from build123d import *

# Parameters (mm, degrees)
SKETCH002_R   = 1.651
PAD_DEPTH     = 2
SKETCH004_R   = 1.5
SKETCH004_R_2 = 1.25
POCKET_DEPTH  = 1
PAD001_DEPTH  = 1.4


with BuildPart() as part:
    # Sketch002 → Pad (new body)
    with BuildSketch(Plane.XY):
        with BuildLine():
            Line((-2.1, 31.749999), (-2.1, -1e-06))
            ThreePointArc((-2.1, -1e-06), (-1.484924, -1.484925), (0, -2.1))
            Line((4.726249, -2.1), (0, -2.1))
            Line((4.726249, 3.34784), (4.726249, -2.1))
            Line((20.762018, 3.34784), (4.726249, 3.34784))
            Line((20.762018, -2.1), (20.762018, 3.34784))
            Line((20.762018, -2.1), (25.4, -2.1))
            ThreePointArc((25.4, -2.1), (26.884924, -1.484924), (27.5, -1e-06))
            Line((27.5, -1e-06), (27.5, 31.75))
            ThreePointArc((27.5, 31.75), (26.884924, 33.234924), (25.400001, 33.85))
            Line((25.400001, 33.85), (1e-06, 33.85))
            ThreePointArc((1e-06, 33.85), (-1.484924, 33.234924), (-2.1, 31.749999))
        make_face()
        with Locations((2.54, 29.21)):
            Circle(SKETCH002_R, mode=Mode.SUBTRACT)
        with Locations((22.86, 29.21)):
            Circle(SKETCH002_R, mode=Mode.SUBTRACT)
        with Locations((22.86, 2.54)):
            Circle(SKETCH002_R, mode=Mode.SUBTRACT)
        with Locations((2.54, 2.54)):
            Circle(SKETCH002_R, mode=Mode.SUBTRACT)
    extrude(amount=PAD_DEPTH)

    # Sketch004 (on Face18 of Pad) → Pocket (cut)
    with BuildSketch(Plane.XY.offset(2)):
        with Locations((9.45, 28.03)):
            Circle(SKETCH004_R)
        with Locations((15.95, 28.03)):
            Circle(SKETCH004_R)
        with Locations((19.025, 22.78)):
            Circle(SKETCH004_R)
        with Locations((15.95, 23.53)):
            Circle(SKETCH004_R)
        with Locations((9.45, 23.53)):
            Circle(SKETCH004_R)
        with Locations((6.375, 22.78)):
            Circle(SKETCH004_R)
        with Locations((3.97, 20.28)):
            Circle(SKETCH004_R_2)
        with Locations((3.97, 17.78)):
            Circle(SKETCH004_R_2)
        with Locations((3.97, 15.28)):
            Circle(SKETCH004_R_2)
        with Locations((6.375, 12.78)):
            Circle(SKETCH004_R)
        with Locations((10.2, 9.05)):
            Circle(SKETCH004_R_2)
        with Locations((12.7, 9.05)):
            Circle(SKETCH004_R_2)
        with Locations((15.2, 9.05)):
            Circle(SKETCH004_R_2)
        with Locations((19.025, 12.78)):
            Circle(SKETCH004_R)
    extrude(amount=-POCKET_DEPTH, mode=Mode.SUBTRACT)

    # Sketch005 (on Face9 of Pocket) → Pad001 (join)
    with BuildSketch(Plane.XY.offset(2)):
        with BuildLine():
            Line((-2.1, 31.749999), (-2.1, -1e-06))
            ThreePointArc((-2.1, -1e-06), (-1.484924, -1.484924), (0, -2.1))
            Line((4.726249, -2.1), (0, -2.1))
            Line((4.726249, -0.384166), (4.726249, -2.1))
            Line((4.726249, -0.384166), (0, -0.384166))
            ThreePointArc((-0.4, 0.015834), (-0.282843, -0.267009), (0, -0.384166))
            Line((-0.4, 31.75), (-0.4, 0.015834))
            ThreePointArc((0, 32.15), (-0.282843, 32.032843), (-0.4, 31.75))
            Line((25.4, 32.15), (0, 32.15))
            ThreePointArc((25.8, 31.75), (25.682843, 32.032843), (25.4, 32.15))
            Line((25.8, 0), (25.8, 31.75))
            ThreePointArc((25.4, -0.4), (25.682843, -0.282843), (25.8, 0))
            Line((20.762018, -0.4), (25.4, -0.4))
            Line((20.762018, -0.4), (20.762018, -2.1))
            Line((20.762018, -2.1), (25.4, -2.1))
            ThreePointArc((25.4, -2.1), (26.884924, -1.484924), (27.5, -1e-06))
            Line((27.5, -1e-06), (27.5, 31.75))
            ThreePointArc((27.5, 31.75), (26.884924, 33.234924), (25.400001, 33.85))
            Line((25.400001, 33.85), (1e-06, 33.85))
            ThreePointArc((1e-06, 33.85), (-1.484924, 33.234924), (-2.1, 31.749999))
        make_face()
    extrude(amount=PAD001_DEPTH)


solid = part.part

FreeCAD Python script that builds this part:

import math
import FreeCAD as App
import Part
import Sketcher
from FreeCAD import Vector
Q = App.Units.Quantity

doc = App.newDocument("Part")
body = doc.addObject("PartDesign::Body", "Body")

# Sketch on XY plane
sketch1 = doc.addObject("Sketcher::SketchObject", "Sketch")
body.addObject(sketch1)
sketch1.AttachmentSupport = (doc.XY_Plane, [""])
sketch1.MapMode = "FlatFace"
sketch1.addGeometry(Part.LineSegment(Vector(-2.1, 31.749999, 0), Vector(-2.1, -0.000001, 0)), False)
sketch1.addGeometry(Part.ArcOfCircle(Part.Circle(Vector(-0.000001, -0.000001, 0), Vector(0, 0, 1), 2.099999), math.radians(-179.999997), math.radians(-89.999976)), False)
sketch1.addGeometry(Part.LineSegment(Vector(0, -2.1, 0), Vector(4.726249, -2.1, 0)), False)
sketch1.addGeometry(Part.LineSegment(Vector(4.726249, -2.1, 0), Vector(4.726249, 3.34784, 0)), False)
sketch1.addGeometry(Part.LineSegment(Vector(4.726249, 3.34784, 0), Vector(20.762018, 3.34784, 0)), False)
sketch1.addGeometry(Part.LineSegment(Vector(20.762018, 3.34784, 0), Vector(20.762018, -2.1, 0)), False)
sketch1.addGeometry(Part.LineSegment(Vector(20.762018, -2.1, 0), Vector(25.4, -2.1, 0)), False)
sketch1.addGeometry(Part.ArcOfCircle(Part.Circle(Vector(25.399999, 0.000001, 0), Vector(0, 0, 1), 2.100001), math.radians(-89.999978), math.radians(-0.00005)), False)
sketch1.addGeometry(Part.LineSegment(Vector(27.5, -0.000001, 0), Vector(27.5, 31.75, 0)), False)
sketch1.addGeometry(Part.ArcOfCircle(Part.Circle(Vector(25.399999, 31.749999, 0), Vector(0, 0, 1), 2.100001), math.radians(0.000022), math.radians(89.99995)), False)
sketch1.addGeometry(Part.LineSegment(Vector(25.400001, 33.85, 0), Vector(0.000001, 33.85, 0)), False)
sketch1.addGeometry(Part.ArcOfCircle(Part.Circle(Vector(0.000001, 31.749999, 0), Vector(0, 0, 1), 2.100001), math.radians(89.999995), math.radians(180.000005)), False)
sketch1.addGeometry(Part.Circle(Vector(2.54, 2.54, 0), Vector(0, 0, 1), 1.651), False)
sketch1.addGeometry(Part.Circle(Vector(22.86, 2.54, 0), Vector(0, 0, 1), 1.651), False)
sketch1.addGeometry(Part.Circle(Vector(2.54, 29.21, 0), Vector(0, 0, 1), 1.651), False)
sketch1.addGeometry(Part.Circle(Vector(22.86, 29.21, 0), Vector(0, 0, 1), 1.651), False)
sketch1.addConstraint(Sketcher.Constraint("Tangent", 0, 2, 1, 1))
sketch1.addConstraint(Sketcher.Constraint("Tangent", 1, 2, 2, 1))
sketch1.addConstraint(Sketcher.Constraint("Coincident", 2, 2, 3, 1))
sketch1.addConstraint(Sketcher.Constraint("Coincident", 3, 2, 4, 1))
sketch1.addConstraint(Sketcher.Constraint("Coincident", 4, 2, 5, 1))
sketch1.addConstraint(Sketcher.Constraint("Coincident", 5, 2, 6, 1))
sketch1.addConstraint(Sketcher.Constraint("Tangent", 6, 2, 7, 1))
sketch1.addConstraint(Sketcher.Constraint("Tangent", 7, 2, 8, 1))
sketch1.addConstraint(Sketcher.Constraint("Tangent", 8, 2, 9, 1))
sketch1.addConstraint(Sketcher.Constraint("Tangent", 9, 2, 10, 1))
sketch1.addConstraint(Sketcher.Constraint("Tangent", 10, 2, 11, 1))
sketch1.addConstraint(Sketcher.Constraint("Tangent", 11, 2, 0, 1))
sketch1.addConstraint(Sketcher.Constraint("Vertical", 0))
sketch1.addConstraint(Sketcher.Constraint("Horizontal", 2))
sketch1.addConstraint(Sketcher.Constraint("Vertical", 3))
sketch1.addConstraint(Sketcher.Constraint("Horizontal", 4))
sketch1.addConstraint(Sketcher.Constraint("Vertical", 5))
sketch1.addConstraint(Sketcher.Constraint("Horizontal", 6))
sketch1.addConstraint(Sketcher.Constraint("Vertical", 8))
sketch1.addConstraint(Sketcher.Constraint("Horizontal", 10))
sketch1.addConstraint(Sketcher.Constraint("Coincident", 1, 3, -1, 1))
sketch1.addConstraint(Sketcher.Constraint("Equal", 1, 7))
sketch1.addConstraint(Sketcher.Constraint("Equal", 7, 9))
sketch1.addConstraint(Sketcher.Constraint("Equal", 9, 11))
sketch1.addConstraint(Sketcher.Constraint("Equal", 12, 13))
sketch1.addConstraint(Sketcher.Constraint("Equal", 13, 14))
sketch1.addConstraint(Sketcher.Constraint("Equal", 14, 15))
sketch1.addConstraint(Sketcher.Constraint("PointOnObject", 7, 3, -1))
sketch1.addConstraint(Sketcher.Constraint("Horizontal", 12, 3, 13, 3))
sketch1.addConstraint(Sketcher.Constraint("Horizontal", 14, 3, 15, 3))
sketch1.addConstraint(Sketcher.Constraint("Vertical", 12, 3, 14, 3))
sketch1.addConstraint(Sketcher.Constraint("Vertical", 13, 3, 15, 3))
sketch1.addConstraint(Sketcher.Constraint("Radius", 1, Q("2.099999 mm")))
sketch1.addConstraint(Sketcher.Constraint("Diameter", 12, Q("3.302 mm")))
sketch1.addConstraint(Sketcher.Constraint("DistanceX", 10, 2, 10, 1, Q("25.4 mm")))
sketch1.addConstraint(Sketcher.Constraint("DistanceY", 0, 2, 0, 1, Q("31.75 mm")))
sketch1.addConstraint(Sketcher.Constraint("DistanceX", -1, 1, 12, 3, Q("2.54 mm")))
sketch1.addConstraint(Sketcher.Constraint("DistanceY", -1, 1, 12, 3, Q("2.54 mm")))
sketch1.addConstraint(Sketcher.Constraint("DistanceX", -1, 1, 13, 3, Q("22.86 mm")))
sketch1.addConstraint(Sketcher.Constraint("DistanceY", -1, 1, 14, 3, Q("29.21 mm")))
sketch1.addConstraint(Sketcher.Constraint("DistanceX", 2, 1, 2, 2, Q("4.726249 mm")))
sketch1.addConstraint(Sketcher.Constraint("DistanceX", 4, 1, 4, 2, Q("16.035769 mm")))
sketch1.addConstraint(Sketcher.Constraint("DistanceY", 3, 1, 3, 2, Q("5.44784 mm")))
pad1 = doc.addObject("PartDesign::Pad", "Pad")
body.addObject(pad1)
pad1.Profile = sketch1
pad1.Length = 2

# Sketch on XY plane
sketch2 = doc.addObject("Sketcher::SketchObject", "Sketch001")
body.addObject(sketch2)
sketch2.AttachmentSupport = (doc.XY_Plane, [""])
sketch2.MapMode = "FlatFace"
sketch2.AttachmentOffset = App.Placement(Vector(0, 0, 2), App.Rotation())
sketch2.addGeometry(Part.Circle(Vector(9.45, 28.03, 0), Vector(0, 0, 1), 1.5), False)
sketch2.addGeometry(Part.Circle(Vector(15.95, 28.03, 0), Vector(0, 0, 1), 1.5), False)
sketch2.addGeometry(Part.Circle(Vector(19.025, 22.78, 0), Vector(0, 0, 1), 1.5), False)
sketch2.addGeometry(Part.Circle(Vector(15.95, 23.53, 0), Vector(0, 0, 1), 1.5), False)
sketch2.addGeometry(Part.Circle(Vector(9.45, 23.53, 0), Vector(0, 0, 1), 1.5), False)
sketch2.addGeometry(Part.Circle(Vector(6.375, 22.78, 0), Vector(0, 0, 1), 1.5), False)
sketch2.addGeometry(Part.Circle(Vector(3.97, 20.28, 0), Vector(0, 0, 1), 1.25), False)
sketch2.addGeometry(Part.ArcOfCircle(Part.Circle(Vector(3.97, 17.78, 0), Vector(0, 0, 1), 1.25), math.radians(90), math.radians(270)), False)
sketch2.addGeometry(Part.ArcOfCircle(Part.Circle(Vector(3.97, 17.78, 0), Vector(0, 0, 1), 1.25), math.radians(-90), math.radians(90)), False)
sketch2.addGeometry(Part.Circle(Vector(3.97, 15.28, 0), Vector(0, 0, 1), 1.25), False)
sketch2.addGeometry(Part.Circle(Vector(6.375, 12.78, 0), Vector(0, 0, 1), 1.5), False)
sketch2.addGeometry(Part.Circle(Vector(10.2, 9.05, 0), Vector(0, 0, 1), 1.25), False)
sketch2.addGeometry(Part.ArcOfCircle(Part.Circle(Vector(12.7, 9.05, 0), Vector(0, 0, 1), 1.25), math.radians(180), math.radians(360)), False)
sketch2.addGeometry(Part.ArcOfCircle(Part.Circle(Vector(12.7, 9.05, 0), Vector(0, 0, 1), 1.25), math.radians(0), math.radians(180)), False)
sketch2.addGeometry(Part.Circle(Vector(15.2, 9.05, 0), Vector(0, 0, 1), 1.25), False)
sketch2.addGeometry(Part.Circle(Vector(19.025, 12.78, 0), Vector(0, 0, 1), 1.5), False)
sketch2.addConstraint(Sketcher.Constraint("Tangent", 7, 1, 8, 2))
sketch2.addConstraint(Sketcher.Constraint("Coincident", 8, 1, 7, 2))
sketch2.addConstraint(Sketcher.Constraint("Tangent", 12, 1, 13, 2))
sketch2.addConstraint(Sketcher.Constraint("Coincident", 13, 1, 12, 2))
sketch2.addConstraint(Sketcher.Constraint("Equal", 0, 1))
sketch2.addConstraint(Sketcher.Constraint("Equal", 1, 2))
sketch2.addConstraint(Sketcher.Constraint("Equal", 2, 3))
sketch2.addConstraint(Sketcher.Constraint("Equal", 3, 4))
sketch2.addConstraint(Sketcher.Constraint("Equal", 4, 5))
sketch2.addConstraint(Sketcher.Constraint("Equal", 6, 7))
sketch2.addConstraint(Sketcher.Constraint("Equal", 8, 9))
sketch2.addConstraint(Sketcher.Constraint("Equal", 5, 10))
sketch2.addConstraint(Sketcher.Constraint("Equal", 9, 11))
sketch2.addConstraint(Sketcher.Constraint("Equal", 11, 12))
sketch2.addConstraint(Sketcher.Constraint("Equal", 13, 14))
sketch2.addConstraint(Sketcher.Constraint("Equal", 10, 15))
sketch2.addConstraint(Sketcher.Constraint("Horizontal", 0, 3, 1, 3))
sketch2.addConstraint(Sketcher.Constraint("Horizontal", 3, 3, 4, 3))
sketch2.addConstraint(Sketcher.Constraint("Horizontal", 2, 3, 5, 3))
sketch2.addConstraint(Sketcher.Constraint("Horizontal", 11, 3, 12, 3))
sketch2.addConstraint(Sketcher.Constraint("Horizontal", 13, 3, 14, 3))
sketch2.addConstraint(Sketcher.Constraint("Horizontal", 10, 3, 15, 3))
sketch2.addConstraint(Sketcher.Constraint("Horizontal", 14, 3, 12, 1))
sketch2.addConstraint(Sketcher.Constraint("Horizontal", 12, 1, 13, 1))
sketch2.addConstraint(Sketcher.Constraint("Vertical", 1, 3, 3, 3))
sketch2.addConstraint(Sketcher.Constraint("Vertical", 0, 3, 4, 3))
sketch2.addConstraint(Sketcher.Constraint("Vertical", 6, 3, 7, 3))
sketch2.addConstraint(Sketcher.Constraint("Vertical", 8, 3, 9, 3))
sketch2.addConstraint(Sketcher.Constraint("Vertical", 5, 3, 10, 3))
sketch2.addConstraint(Sketcher.Constraint("Vertical", 2, 3, 15, 3))
sketch2.addConstraint(Sketcher.Constraint("Vertical", 9, 3, 7, 1))
sketch2.addConstraint(Sketcher.Constraint("Vertical", 7, 1, 8, 1))
sketch2.addConstraint(Sketcher.Constraint("Diameter", 0, Q("3 mm")))
sketch2.addConstraint(Sketcher.Constraint("Diameter", 6, Q("2.5 mm")))
sketch2.addConstraint(Sketcher.Constraint("DistanceY", 7, 3, 5, 3, Q("5 mm")))
sketch2.addConstraint(Sketcher.Constraint("DistanceY", 9, 3, 6, 3, Q("5 mm")))
sketch2.addConstraint(Sketcher.Constraint("DistanceY", 10, 3, 7, 3, Q("5 mm")))
sketch2.addConstraint(Sketcher.Constraint("DistanceX", 11, 3, 14, 3, Q("5 mm")))
sketch2.addConstraint(Sketcher.Constraint("DistanceX", -1, 1, 11, 3, Q("10.2 mm")))
sketch2.addConstraint(Sketcher.Constraint("DistanceX", -1, 1, 12, 3, Q("12.7 mm")))
sketch2.addConstraint(Sketcher.Constraint("DistanceX", 0, 3, 1, 3, Q("6.5 mm")))
sketch2.addConstraint(Sketcher.Constraint("DistanceY", 3, 3, 1, 3, Q("4.5 mm")))
sketch2.addConstraint(Sketcher.Constraint("DistanceY", 6, 3, 5, 3, Q("2.5 mm")))
sketch2.addConstraint(Sketcher.Constraint("DistanceX", -1, 1, 0, 3, Q("9.45 mm")))
sketch2.addConstraint(Sketcher.Constraint("DistanceY", -1, 1, 0, 3, Q("28.03 mm")))
sketch2.addConstraint(Sketcher.Constraint("DistanceY", -1, 1, 2, 3, Q("22.78 mm")))
sketch2.addConstraint(Sketcher.Constraint("DistanceX", -1, 1, 6, 3, Q("3.97 mm")))
sketch2.addConstraint(Sketcher.Constraint("DistanceY", -1, 1, 11, 3, Q("9.05 mm")))
sketch2.addConstraint(Sketcher.Constraint("DistanceX", 5, 3, 2, 3, Q("12.65 mm")))
sketch2.addConstraint(Sketcher.Constraint("DistanceX", -1, 1, 2, 3, Q("19.025 mm")))
pocket1 = doc.addObject("PartDesign::Pocket", "Pocket")
body.addObject(pocket1)
pocket1.Profile = sketch2
pocket1.Length = 1

# Sketch on XY plane
sketch3 = doc.addObject("Sketcher::SketchObject", "Sketch002")
body.addObject(sketch3)
sketch3.AttachmentSupport = (doc.XY_Plane, [""])
sketch3.MapMode = "FlatFace"
sketch3.AttachmentOffset = App.Placement(Vector(0, 0, 2), App.Rotation())
sketch3.addGeometry(Part.LineSegment(Vector(-2.1, 31.749999, 0), Vector(-2.1, -0.000001, 0)), False)
sketch3.addGeometry(Part.ArcOfCircle(Part.Circle(Vector(0.000001, 0.000001, 0), Vector(0, 0, 1), 2.100001), math.radians(-179.99995), math.radians(-90.000022)), False)
sketch3.addGeometry(Part.LineSegment(Vector(0, -2.1, 0), Vector(4.726249, -2.1, 0)), False)
sketch3.addGeometry(Part.LineSegment(Vector(4.726249, -2.1, 0), Vector(4.726249, -0.384166, 0)), False)
sketch3.addGeometry(Part.LineSegment(Vector(4.726249, -0.384166, 0), Vector(0, -0.384166, 0)), False)
sketch3.addGeometry(Part.ArcOfCircle(Part.Circle(Vector(-0.000001, 0.015833, 0), Vector(0, 0, 1), 0.399999), math.radians(179.999859), math.radians(270.000141)), False)
sketch3.addGeometry(Part.LineSegment(Vector(-0.4, 0.015834, 0), Vector(-0.4, 31.75, 0)), False)
sketch3.addGeometry(Part.ArcOfCircle(Part.Circle(Vector(-0.000001, 31.750001, 0), Vector(0, 0, 1), 0.399999), math.radians(89.999859), math.radians(180.000141)), False)
sketch3.addGeometry(Part.LineSegment(Vector(0, 32.15, 0), Vector(25.4, 32.15, 0)), False)
sketch3.addGeometry(Part.ArcOfCircle(Part.Circle(Vector(25.400001, 31.750001, 0), Vector(0, 0, 1), 0.399999), math.radians(-0.000141), math.radians(90.000141)), False)
sketch3.addGeometry(Part.LineSegment(Vector(25.8, 31.75, 0), Vector(25.8, 0, 0)), False)
sketch3.addGeometry(Part.ArcOfCircle(Part.Circle(Vector(25.400001, -0.000001, 0), Vector(0, 0, 1), 0.399999), math.radians(-90.000141), math.radians(0.000141)), False)
sketch3.addGeometry(Part.LineSegment(Vector(25.4, -0.4, 0), Vector(20.762018, -0.4, 0)), False)
sketch3.addGeometry(Part.LineSegment(Vector(20.762018, -0.4, 0), Vector(20.762018, -2.1, 0)), False)
sketch3.addGeometry(Part.LineSegment(Vector(20.762018, -2.1, 0), Vector(25.4, -2.1, 0)), False)
sketch3.addGeometry(Part.ArcOfCircle(Part.Circle(Vector(25.399999, 0.000001, 0), Vector(0, 0, 1), 2.100001), math.radians(-89.999978), math.radians(-0.00005)), False)
sketch3.addGeometry(Part.LineSegment(Vector(27.5, -0.000001, 0), Vector(27.5, 31.75, 0)), False)
sketch3.addGeometry(Part.ArcOfCircle(Part.Circle(Vector(25.399999, 31.749999, 0), Vector(0, 0, 1), 2.100001), math.radians(0.000022), math.radians(89.99995)), False)
sketch3.addGeometry(Part.LineSegment(Vector(25.400001, 33.85, 0), Vector(0.000001, 33.85, 0)), False)
sketch3.addGeometry(Part.ArcOfCircle(Part.Circle(Vector(0.000001, 31.749999, 0), Vector(0, 0, 1), 2.100001), math.radians(89.999995), math.radians(180.000005)), False)
sketch3.addConstraint(Sketcher.Constraint("Tangent", 0, 2, 1, 1))
sketch3.addConstraint(Sketcher.Constraint("Tangent", 1, 2, 2, 1))
sketch3.addConstraint(Sketcher.Constraint("Coincident", 2, 2, 3, 1))
sketch3.addConstraint(Sketcher.Constraint("Coincident", 3, 2, 4, 1))
sketch3.addConstraint(Sketcher.Constraint("Coincident", 4, 2, 5, 2))
sketch3.addConstraint(Sketcher.Constraint("Coincident", 5, 1, 6, 1))
sketch3.addConstraint(Sketcher.Constraint("Coincident", 6, 2, 7, 2))
sketch3.addConstraint(Sketcher.Constraint("Coincident", 7, 1, 8, 1))
sketch3.addConstraint(Sketcher.Constraint("Coincident", 8, 2, 9, 2))
sketch3.addConstraint(Sketcher.Constraint("Coincident", 9, 1, 10, 1))
sketch3.addConstraint(Sketcher.Constraint("Coincident", 10, 2, 11, 2))
sketch3.addConstraint(Sketcher.Constraint("Coincident", 11, 1, 12, 1))
sketch3.addConstraint(Sketcher.Constraint("Coincident", 12, 2, 13, 1))
sketch3.addConstraint(Sketcher.Constraint("Coincident", 13, 2, 14, 1))
sketch3.addConstraint(Sketcher.Constraint("Tangent", 14, 2, 15, 1))
sketch3.addConstraint(Sketcher.Constraint("Tangent", 15, 2, 16, 1))
sketch3.addConstraint(Sketcher.Constraint("Tangent", 16, 2, 17, 1))
sketch3.addConstraint(Sketcher.Constraint("Tangent", 17, 2, 18, 1))
sketch3.addConstraint(Sketcher.Constraint("Tangent", 18, 2, 19, 1))
sketch3.addConstraint(Sketcher.Constraint("Tangent", 19, 2, 0, 1))
sketch3.addConstraint(Sketcher.Constraint("Vertical", 0))
sketch3.addConstraint(Sketcher.Constraint("Horizontal", 2))
sketch3.addConstraint(Sketcher.Constraint("Vertical", 3))
sketch3.addConstraint(Sketcher.Constraint("Horizontal", 4))
sketch3.addConstraint(Sketcher.Constraint("Vertical", 6))
sketch3.addConstraint(Sketcher.Constraint("Horizontal", 8))
sketch3.addConstraint(Sketcher.Constraint("Vertical", 10))
sketch3.addConstraint(Sketcher.Constraint("Horizontal", 12))
sketch3.addConstraint(Sketcher.Constraint("Vertical", 13))
sketch3.addConstraint(Sketcher.Constraint("Horizontal", 14))
sketch3.addConstraint(Sketcher.Constraint("Vertical", 16))
sketch3.addConstraint(Sketcher.Constraint("Horizontal", 18))
sketch3.addConstraint(Sketcher.Constraint("Coincident", 1, 3, -1, 1))
sketch3.addConstraint(Sketcher.Constraint("Coincident", 15, 3, 11, 3))
sketch3.addConstraint(Sketcher.Constraint("Coincident", 17, 3, 9, 3))
sketch3.addConstraint(Sketcher.Constraint("Coincident", 19, 3, 7, 3))
sketch3.addConstraint(Sketcher.Constraint("Equal", 5, 7))
sketch3.addConstraint(Sketcher.Constraint("Equal", 7, 9))
sketch3.addConstraint(Sketcher.Constraint("Equal", 9, 11))
sketch3.addConstraint(Sketcher.Constraint("Equal", 1, 15))
sketch3.addConstraint(Sketcher.Constraint("PointOnObject", 11, 3, -1))
sketch3.addConstraint(Sketcher.Constraint("PointOnObject", 4, 2, -2))
sketch3.addConstraint(Sketcher.Constraint("PointOnObject", 7, 1, -2))
sketch3.addConstraint(Sketcher.Constraint("PointOnObject", 10, 2, -1))
sketch3.addConstraint(Sketcher.Constraint("Horizontal", 19, 3, 6, 2))
sketch3.addConstraint(Sketcher.Constraint("Horizontal", 6, 2, 9, 1))
sketch3.addConstraint(Sketcher.Constraint("Vertical", 17, 3, 8, 2))
sketch3.addConstraint(Sketcher.Constraint("Vertical", 8, 2, 11, 1))
sketch3.addConstraint(Sketcher.Constraint("Radius", 1, Q("2.100001 mm")))
sketch3.addConstraint(Sketcher.Constraint("Radius", 5, Q("0.399999 mm")))
sketch3.addConstraint(Sketcher.Constraint("DistanceX", 8, 1, 8, 2, Q("25.4 mm")))
sketch3.addConstraint(Sketcher.Constraint("DistanceY", 0, 2, 0, 1, Q("31.75 mm")))
sketch3.addConstraint(Sketcher.Constraint("DistanceY", 4, 2, 5, 1, Q("0.4 mm")))
sketch3.addConstraint(Sketcher.Constraint("DistanceX", 2, 1, 2, 2, Q("4.726249 mm")))
sketch3.addConstraint(Sketcher.Constraint("DistanceX", 12, 2, 12, 1, Q("4.637982 mm")))
sketch3.addConstraint(Sketcher.Constraint("DistanceY", 3, 1, 3, 2, Q("1.715834 mm")))
pad2 = doc.addObject("PartDesign::Pad", "Pad001")
body.addObject(pad2)
pad2.Profile = sketch3
pad2.Length = 1.4

doc.recompute()
